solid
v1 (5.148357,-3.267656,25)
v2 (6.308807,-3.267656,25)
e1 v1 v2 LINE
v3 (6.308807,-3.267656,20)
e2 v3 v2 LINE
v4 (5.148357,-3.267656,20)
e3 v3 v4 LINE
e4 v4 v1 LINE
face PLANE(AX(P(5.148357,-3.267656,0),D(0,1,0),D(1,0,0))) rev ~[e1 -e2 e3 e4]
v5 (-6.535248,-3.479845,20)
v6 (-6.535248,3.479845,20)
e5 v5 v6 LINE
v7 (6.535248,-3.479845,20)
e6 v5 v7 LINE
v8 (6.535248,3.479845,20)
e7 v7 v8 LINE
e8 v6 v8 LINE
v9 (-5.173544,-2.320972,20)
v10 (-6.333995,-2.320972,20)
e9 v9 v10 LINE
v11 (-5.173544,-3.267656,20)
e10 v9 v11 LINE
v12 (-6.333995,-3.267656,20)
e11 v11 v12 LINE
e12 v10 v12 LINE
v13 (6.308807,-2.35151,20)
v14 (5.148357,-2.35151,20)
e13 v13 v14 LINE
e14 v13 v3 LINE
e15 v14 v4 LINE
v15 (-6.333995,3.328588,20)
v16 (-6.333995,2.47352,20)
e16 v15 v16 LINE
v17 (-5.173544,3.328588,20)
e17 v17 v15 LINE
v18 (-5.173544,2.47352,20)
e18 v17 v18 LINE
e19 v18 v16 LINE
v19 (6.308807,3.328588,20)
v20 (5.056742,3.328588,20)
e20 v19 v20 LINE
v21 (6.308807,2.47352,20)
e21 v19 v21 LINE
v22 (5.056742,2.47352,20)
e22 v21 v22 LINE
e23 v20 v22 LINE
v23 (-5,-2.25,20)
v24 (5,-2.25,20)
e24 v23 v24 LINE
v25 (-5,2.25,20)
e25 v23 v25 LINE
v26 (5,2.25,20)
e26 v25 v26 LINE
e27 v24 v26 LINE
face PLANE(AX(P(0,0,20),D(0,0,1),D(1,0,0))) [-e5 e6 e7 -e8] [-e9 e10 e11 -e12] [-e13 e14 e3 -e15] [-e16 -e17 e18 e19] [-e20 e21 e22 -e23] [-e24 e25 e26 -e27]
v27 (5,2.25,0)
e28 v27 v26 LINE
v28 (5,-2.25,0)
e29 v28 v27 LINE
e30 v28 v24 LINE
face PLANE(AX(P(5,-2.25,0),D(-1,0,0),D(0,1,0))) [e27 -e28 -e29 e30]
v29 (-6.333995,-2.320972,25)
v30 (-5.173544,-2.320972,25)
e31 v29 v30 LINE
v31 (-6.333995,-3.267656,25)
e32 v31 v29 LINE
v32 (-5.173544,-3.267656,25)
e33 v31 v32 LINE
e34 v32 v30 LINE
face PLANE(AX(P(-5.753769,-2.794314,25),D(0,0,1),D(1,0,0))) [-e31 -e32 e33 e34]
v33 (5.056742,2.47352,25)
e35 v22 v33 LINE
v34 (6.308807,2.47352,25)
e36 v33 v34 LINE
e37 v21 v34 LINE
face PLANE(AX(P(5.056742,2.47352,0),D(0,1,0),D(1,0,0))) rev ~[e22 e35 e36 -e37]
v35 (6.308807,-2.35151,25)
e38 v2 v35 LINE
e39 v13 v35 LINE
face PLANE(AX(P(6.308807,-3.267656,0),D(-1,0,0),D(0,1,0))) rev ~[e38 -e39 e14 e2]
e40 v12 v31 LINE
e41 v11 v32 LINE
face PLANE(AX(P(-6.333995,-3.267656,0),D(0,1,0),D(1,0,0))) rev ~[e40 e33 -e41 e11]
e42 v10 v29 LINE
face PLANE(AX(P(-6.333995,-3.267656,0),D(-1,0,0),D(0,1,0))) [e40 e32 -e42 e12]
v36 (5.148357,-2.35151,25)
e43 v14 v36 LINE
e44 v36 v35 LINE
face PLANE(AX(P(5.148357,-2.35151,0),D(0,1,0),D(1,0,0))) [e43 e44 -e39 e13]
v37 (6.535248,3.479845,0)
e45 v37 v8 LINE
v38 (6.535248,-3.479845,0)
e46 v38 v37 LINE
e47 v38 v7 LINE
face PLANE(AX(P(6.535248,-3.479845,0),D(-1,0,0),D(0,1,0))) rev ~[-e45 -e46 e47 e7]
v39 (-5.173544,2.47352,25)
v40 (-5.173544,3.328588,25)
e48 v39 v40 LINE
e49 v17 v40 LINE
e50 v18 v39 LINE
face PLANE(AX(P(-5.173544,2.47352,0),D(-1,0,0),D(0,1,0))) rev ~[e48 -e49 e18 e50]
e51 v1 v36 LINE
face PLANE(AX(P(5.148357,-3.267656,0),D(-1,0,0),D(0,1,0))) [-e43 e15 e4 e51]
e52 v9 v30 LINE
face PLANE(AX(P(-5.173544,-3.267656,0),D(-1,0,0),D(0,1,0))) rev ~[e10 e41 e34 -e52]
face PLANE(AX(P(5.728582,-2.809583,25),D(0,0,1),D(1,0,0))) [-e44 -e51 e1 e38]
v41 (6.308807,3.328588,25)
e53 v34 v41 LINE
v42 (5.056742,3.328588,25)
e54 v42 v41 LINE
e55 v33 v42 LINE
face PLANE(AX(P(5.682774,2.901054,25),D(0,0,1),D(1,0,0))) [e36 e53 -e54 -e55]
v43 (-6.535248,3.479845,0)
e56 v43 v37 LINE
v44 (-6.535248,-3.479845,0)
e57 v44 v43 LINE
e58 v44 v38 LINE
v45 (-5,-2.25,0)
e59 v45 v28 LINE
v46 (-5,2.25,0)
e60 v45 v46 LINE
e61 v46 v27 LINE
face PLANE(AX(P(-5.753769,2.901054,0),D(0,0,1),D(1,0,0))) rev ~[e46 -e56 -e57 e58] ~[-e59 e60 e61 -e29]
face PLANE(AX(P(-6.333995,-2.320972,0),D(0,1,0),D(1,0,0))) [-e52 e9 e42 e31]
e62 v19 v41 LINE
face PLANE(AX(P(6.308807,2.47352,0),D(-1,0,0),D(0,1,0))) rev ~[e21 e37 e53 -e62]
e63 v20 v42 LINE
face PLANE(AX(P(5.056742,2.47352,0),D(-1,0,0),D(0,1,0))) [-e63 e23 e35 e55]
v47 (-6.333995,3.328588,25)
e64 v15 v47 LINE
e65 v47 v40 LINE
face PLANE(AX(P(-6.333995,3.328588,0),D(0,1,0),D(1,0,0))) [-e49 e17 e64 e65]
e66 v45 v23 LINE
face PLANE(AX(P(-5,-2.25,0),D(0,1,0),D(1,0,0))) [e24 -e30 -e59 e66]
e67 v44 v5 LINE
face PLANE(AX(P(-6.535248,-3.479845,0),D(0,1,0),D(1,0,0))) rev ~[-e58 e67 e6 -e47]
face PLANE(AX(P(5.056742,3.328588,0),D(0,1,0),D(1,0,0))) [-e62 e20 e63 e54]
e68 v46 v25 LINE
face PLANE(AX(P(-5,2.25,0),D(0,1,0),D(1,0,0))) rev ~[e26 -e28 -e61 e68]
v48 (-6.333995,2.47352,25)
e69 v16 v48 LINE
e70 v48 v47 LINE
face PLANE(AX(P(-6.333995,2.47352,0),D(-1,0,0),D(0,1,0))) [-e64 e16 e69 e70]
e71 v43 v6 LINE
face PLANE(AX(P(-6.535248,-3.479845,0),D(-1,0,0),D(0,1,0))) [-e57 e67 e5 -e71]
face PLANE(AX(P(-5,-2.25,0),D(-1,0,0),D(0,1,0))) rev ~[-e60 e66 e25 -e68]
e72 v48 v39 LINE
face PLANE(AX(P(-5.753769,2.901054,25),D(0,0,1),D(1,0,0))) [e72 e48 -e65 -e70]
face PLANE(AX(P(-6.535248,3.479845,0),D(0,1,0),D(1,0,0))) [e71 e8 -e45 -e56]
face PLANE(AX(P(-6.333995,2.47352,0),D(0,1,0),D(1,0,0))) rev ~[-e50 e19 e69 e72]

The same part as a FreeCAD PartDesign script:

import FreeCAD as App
import Part
import Sketcher

doc = App.newDocument("Part")
body = doc.addObject("PartDesign::Body", "Body")

# Sketch on XY plane
sketch1 = doc.addObject("Sketcher::SketchObject", "Sketch")
body.addObject(sketch1)
sketch1.AttachmentSupport = (doc.XY_Plane, [""])
sketch1.MapMode = "FlatFace"
sketch1.addGeometry([
    Part.LineSegment(App.Vector(-6.5, 3.5, 0), App.Vector(-6.5, -3.5, 0)),  # 0
    Part.LineSegment(App.Vector(-6.5, -3.5, 0), App.Vector(6.5, -3.5, 0)),  # 1
    Part.LineSegment(App.Vector(6.5, -3.5, 0), App.Vector(6.5, 3.5, 0)),  # 2
    Part.LineSegment(App.Vector(6.5, 3.5, 0), App.Vector(-6.5, 3.5, 0)),  # 3
    Part.LineSegment(App.Vector(5, -2.2, 0), App.Vector(-5, -2.2, 0)),  # 4
    Part.LineSegment(App.Vector(-5, -2.2, 0), App.Vector(-5, 2.2, 0)),  # 5
    Part.LineSegment(App.Vector(-5, 2.2, 0), App.Vector(5, 2.2, 0)),  # 6
    Part.LineSegment(App.Vector(5, 2.2, 0), App.Vector(5, -2.2, 0)),  # 7
], False)
sketch1.addConstraint([
    Sketcher.Constraint("Coincident", 0, 2, 1, 1),
    Sketcher.Constraint("Coincident", 1, 2, 2, 1),
    Sketcher.Constraint("Coincident", 2, 2, 3, 1),
    Sketcher.Constraint("Coincident", 3, 2, 0, 1),
    Sketcher.Constraint("Coincident", 4, 2, 5, 1),
    Sketcher.Constraint("Coincident", 5, 2, 6, 1),
    Sketcher.Constraint("Coincident", 6, 2, 7, 1),
    Sketcher.Constraint("Coincident", 7, 2, 4, 1),
    Sketcher.Constraint("Vertical", 0),
    Sketcher.Constraint("Horizontal", 1),
    Sketcher.Constraint("Vertical", 2),
    Sketcher.Constraint("Horizontal", 3),
    Sketcher.Constraint("Horizontal", 4),
    Sketcher.Constraint("Vertical", 5),
    Sketcher.Constraint("Horizontal", 6),
    Sketcher.Constraint("Vertical", 7),
    Sketcher.Constraint("Symmetric", 0, 2, 2, 2, -1, 1),
    Sketcher.Constraint("Symmetric", 4, 2, 6, 2, -1, 1),
    Sketcher.Constraint("DistanceX", 4, 2, 4, 1, 10.0),
    Sketcher.Constraint("DistanceY", 5, 1, 5, 2, 4.5),
    Sketcher.Constraint("DistanceY", 0, 2, 0, 1, 6.95969),
    Sketcher.Constraint("DistanceX", 1, 1, 1, 2, 13.070496),
])
pad1 = doc.addObject("PartDesign::Pad", "Pad")
body.addObject(pad1)
pad1.Profile = sketch1
pad1.Length = 20

# Sketch on XY plane
sketch2 = doc.addObject("Sketcher::SketchObject", "Sketch001")
body.addObject(sketch2)
sketch2.AttachmentSupport = (doc.XY_Plane, [""])
sketch2.MapMode = "FlatFace"
sketch2.addGeometry([
    Part.LineSegment(App.Vector(-6.3, 3.3, 0), App.Vector(-6.3, 2.5, 0)),  # 0
    Part.LineSegment(App.Vector(-6.3, 2.5, 0), App.Vector(-5.2, 2.5, 0)),  # 1
    Part.LineSegment(App.Vector(-5.2, 2.5, 0), App.Vector(-5.2, 3.3, 0)),  # 2
    Part.LineSegment(App.Vector(-5.2, 3.3, 0), App.Vector(-6.3, 3.3, 0)),  # 3
    Part.LineSegment(App.Vector(-6.3, -2.3, 0), App.Vector(-6.3, -3.3, 0)),  # 4
    Part.LineSegment(App.Vector(-6.3, -3.3, 0), App.Vector(-5.2, -3.3, 0)),  # 5
    Part.LineSegment(App.Vector(-5.2, -3.3, 0), App.Vector(-5.2, -2.3, 0)),  # 6
    Part.LineSegment(App.Vector(-5.2, -2.3, 0), App.Vector(-6.3, -2.3, 0)),  # 7
    Part.LineSegment(App.Vector(5.1, -2.4, 0), App.Vector(5.1, -3.3, 0)),  # 8
    Part.LineSegment(App.Vector(5.1, -3.3, 0), App.Vector(6.3, -3.3, 0)),  # 9
    Part.LineSegment(App.Vector(6.3, -3.3, 0), App.Vector(6.3, -2.4, 0)),  # 10
    Part.LineSegment(App.Vector(6.3, -2.4, 0), App.Vector(5.1, -2.4, 0)),  # 11
    Part.LineSegment(App.Vector(5.1, 3.3, 0), App.Vector(5.1, 2.5, 0)),  # 12
    Part.LineSegment(App.Vector(5.1, 2.5, 0), App.Vector(6.3, 2.5, 0)),  # 13
    Part.LineSegment(App.Vector(6.3, 2.5, 0), App.Vector(6.3, 3.3, 0)),  # 14
    Part.LineSegment(App.Vector(6.3, 3.3, 0), App.Vector(5.1, 3.3, 0)),  # 15
], False)
sketch2.addConstraint([
    Sketcher.Constraint("Coincident", 0, 2, 1, 1),
    Sketcher.Constraint("Coincident", 1, 2, 2, 1),
    Sketcher.Constraint("Coincident", 2, 2, 3, 1),
    Sketcher.Constraint("Coincident", 3, 2, 0, 1),
    Sketcher.Constraint("Coincident", 4, 2, 5, 1),
    Sketcher.Constraint("Coincident", 5, 2, 6, 1),
    Sketcher.Constraint("Coincident", 6, 2, 7, 1),
    Sketcher.Constraint("Coincident", 7, 2, 4, 1),
    Sketcher.Constraint("Coincident", 8, 2, 9, 1),
    Sketcher.Constraint("Coincident", 9, 2, 10, 1),
    Sketcher.Constraint("Coincident", 10, 2, 11, 1),
    Sketcher.Constraint("Coincident", 11, 2, 8, 1),
    Sketcher.Constraint("Coincident", 12, 2, 13, 1),
    Sketcher.Constraint("Coincident", 13, 2, 14, 1),
    Sketcher.Constraint("Coincident", 14, 2, 15, 1),
    Sketcher.Constraint("Coincident", 15, 2, 12, 1),
    Sketcher.Constraint("Vertical", 0),
    Sketcher.Constraint("Horizontal", 1),
    Sketcher.Constraint("Vertical", 2),
    Sketcher.Constraint("Horizontal", 3),
    Sketcher.Constraint("Vertical", 4),
    Sketcher.Constraint("Horizontal", 5),
    Sketcher.Constraint("Vertical", 6),
    Sketcher.Constraint("Horizontal", 7),
    Sketcher.Constraint("Vertical", 8),
    Sketcher.Constraint("Horizontal", 9),
    Sketcher.Constraint("Vertical", 10),
    Sketcher.Constraint("Horizontal", 11),
    Sketcher.Constraint("Vertical", 12),
    Sketcher.Constraint("Horizontal", 13),
    Sketcher.Constraint("Vertical", 14),
    Sketcher.Constraint("Horizontal", 15),
    Sketcher.Constraint("Horizontal", 5, 2, 8, 2),
    Sketcher.Constraint("Horizontal", 1, 2, 12, 2),
    Sketcher.Constraint("Horizontal", 3, 2, 14, 2),
    Sketcher.Constraint("Vertical", 3, 2, 4, 2),
    Sketcher.Constraint("Vertical", 2, 2, 5, 2),
    Sketcher.Constraint("Vertical", 10, 2, 13, 2),
    Sketcher.Constraint("Equal", 7, 9),
    Sketcher.Constraint("DistanceX", 1, 1, 1, 2, 1.160451),
    Sketcher.Constraint("DistanceY", 0, 2, 0, 1, 0.855069),
    Sketcher.Constraint("DistanceX", 5, 2, 8, 2, 10.3219),
    Sketcher.Constraint("DistanceY", 10, 2, 14, 2, 5.680099),
    Sketcher.Constraint("DistanceX", 13, 1, 13, 2, 1.252065),
    Sketcher.Constraint("DistanceY", 4, 2, 4, 1, 0.946683),
    Sketcher.Constraint("DistanceY", 8, 2, 8, 1, 0.916145),
    Sketcher.Constraint("DistanceY", -1, 1, 0, 2, 2.47352),
    Sketcher.Constraint("DistanceX", -1, 1, 12, 2, 5.056742),
])
pad2 = doc.addObject("PartDesign::Pad", "Pad001")
body.addObject(pad2)
pad2.Profile = sketch2
pad2.Length = 25

doc.recompute()
